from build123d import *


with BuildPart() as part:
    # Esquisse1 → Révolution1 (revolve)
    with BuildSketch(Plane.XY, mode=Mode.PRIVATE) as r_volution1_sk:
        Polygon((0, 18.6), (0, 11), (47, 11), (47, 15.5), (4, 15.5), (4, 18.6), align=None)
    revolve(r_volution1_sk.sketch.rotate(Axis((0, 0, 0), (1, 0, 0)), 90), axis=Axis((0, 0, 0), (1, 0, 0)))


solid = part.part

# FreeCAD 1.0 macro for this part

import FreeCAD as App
import Part
import Sketcher

V = App.Vector


def add_polygon(sketch, points):
    """Adds a closed chain of lines whose ends are joined by coincident constraints."""
    first, n = sketch.GeometryCount, len(points)
    for a, b in zip(points, points[1:] + points[:1]):
        sketch.addGeometry(Part.LineSegment(App.Vector(*a, 0), App.Vector(*b, 0)), False)
    for i in range(n):
        sketch.addConstraint(Sketcher.Constraint("Coincident", first + i, 2, first + (i + 1) % n, 1))

doc = App.newDocument("Part")
body = doc.addObject("PartDesign::Body", "Body")

# Sketch on XY plane
sketch1 = doc.addObject("Sketcher::SketchObject", "Sketch")
body.addObject(sketch1)
sketch1.AttachmentSupport = (doc.XY_Plane, [""])
sketch1.MapMode = "FlatFace"
add_polygon(sketch1, [(0, 18.6), (0, 11), (47, 11), (47, 15.5), (4, 15.5), (4, 18.6)])  # lines 0-5
sketch1.addConstraint(Sketcher.Constraint("Vertical", 0))
sketch1.addConstraint(Sketcher.Constraint("Horizontal", 1))
sketch1.addConstraint(Sketcher.Constraint("Vertical", 2))
sketch1.addConstraint(Sketcher.Constraint("Horizontal", 3))
sketch1.addConstraint(Sketcher.Constraint("Vertical", 4))
sketch1.addConstraint(Sketcher.Constraint("Horizontal", 5))
sketch1.addConstraint(Sketcher.Constraint("PointOnObject", 0, 2, -2))
sketch1.addConstraint(Sketcher.Constraint("DistanceX", 1, 1, 1, 2, 47.0))
sketch1.addConstraint(Sketcher.Constraint("DistanceX", 3, 2, 3, 1, 43.0))
sketch1.addConstraint(Sketcher.Constraint("DistanceY", 0, 2, 0, 1, 7.6))
sketch1.addConstraint(Sketcher.Constraint("DistanceY", 2, 1, 2, 2, 4.5))
sketch1.addConstraint(Sketcher.Constraint("DistanceY", -1, 1, 0, 2, 11.0))
revolution = doc.addObject("PartDesign::Revolution", "Revolution")
body.addObject(revolution)
revolution.Profile = sketch1
revolution.ReferenceAxis = (sketch1, ["H_Axis"])
revolution.Angle = 360

doc.recompute()
